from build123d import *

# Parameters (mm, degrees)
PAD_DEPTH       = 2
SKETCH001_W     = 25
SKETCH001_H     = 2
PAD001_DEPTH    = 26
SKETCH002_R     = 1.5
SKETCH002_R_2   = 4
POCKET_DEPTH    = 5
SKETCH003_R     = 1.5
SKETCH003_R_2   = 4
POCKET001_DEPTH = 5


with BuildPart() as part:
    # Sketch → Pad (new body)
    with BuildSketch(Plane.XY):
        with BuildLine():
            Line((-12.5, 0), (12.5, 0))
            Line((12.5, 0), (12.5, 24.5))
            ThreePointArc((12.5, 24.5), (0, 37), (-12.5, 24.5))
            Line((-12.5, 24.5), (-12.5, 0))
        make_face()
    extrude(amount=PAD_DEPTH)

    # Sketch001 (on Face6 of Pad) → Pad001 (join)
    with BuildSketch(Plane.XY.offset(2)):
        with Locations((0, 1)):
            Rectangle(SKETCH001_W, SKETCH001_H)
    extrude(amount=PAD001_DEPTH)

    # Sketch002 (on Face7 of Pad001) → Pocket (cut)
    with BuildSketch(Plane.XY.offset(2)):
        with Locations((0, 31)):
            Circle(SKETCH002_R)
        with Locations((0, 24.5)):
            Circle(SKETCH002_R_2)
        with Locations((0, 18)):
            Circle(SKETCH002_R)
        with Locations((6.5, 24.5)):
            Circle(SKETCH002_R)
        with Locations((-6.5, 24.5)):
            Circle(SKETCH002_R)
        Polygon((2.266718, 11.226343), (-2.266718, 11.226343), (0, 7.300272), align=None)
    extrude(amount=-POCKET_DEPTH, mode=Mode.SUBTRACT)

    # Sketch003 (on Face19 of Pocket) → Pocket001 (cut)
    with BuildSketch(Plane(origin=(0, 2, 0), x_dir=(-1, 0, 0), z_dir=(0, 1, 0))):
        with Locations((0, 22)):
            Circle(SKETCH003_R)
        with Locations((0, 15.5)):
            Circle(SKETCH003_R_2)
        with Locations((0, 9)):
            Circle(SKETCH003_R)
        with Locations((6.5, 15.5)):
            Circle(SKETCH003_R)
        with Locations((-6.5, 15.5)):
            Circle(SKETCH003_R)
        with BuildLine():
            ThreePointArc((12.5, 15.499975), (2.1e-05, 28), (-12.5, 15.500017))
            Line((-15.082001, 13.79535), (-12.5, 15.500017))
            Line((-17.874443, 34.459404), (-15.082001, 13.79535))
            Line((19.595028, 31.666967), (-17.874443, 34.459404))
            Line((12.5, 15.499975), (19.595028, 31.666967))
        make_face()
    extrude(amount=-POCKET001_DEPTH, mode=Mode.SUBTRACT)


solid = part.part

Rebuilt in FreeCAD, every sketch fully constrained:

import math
import FreeCAD as App
import Part
import Sketcher
from FreeCAD import Vector
Q = App.Units.Quantity

doc = App.newDocument("Part")
params = doc.addObject("Spreadsheet::Sheet", "Params")
for row, (alias, value) in enumerate([
    ("sketch1_radius", "12.5 mm"),
    ("sketch1_height", "24.5 mm"),
    ("pad1_length", "2 mm"),
    ("sketch2_width", "25 mm"),
    ("sketch2_height", "2 mm"),
    ("pad2_length", "26 mm"),
    ("sketch3_diameter", "3 mm"),
    ("sketch3_diameter2", "8 mm"),
    ("pocket1_length", "5 mm"),
    ("sketch4_diameter", "3 mm"),
    ("sketch4_diameter2", "8 mm"),
    ("sketch4_radius", "12.5 mm"),
    ("pocket2_length", "5 mm"),
], start=1):
    params.set(f"A{row}", alias)
    params.set(f"B{row}", "=" + value)
    params.setAlias(f"B{row}", alias)

body = doc.addObject("PartDesign::Body", "Body")

sketch1 = body.newObject("Sketcher::SketchObject", "Sketch")
sketch1.AttachmentSupport = (doc.getObject("XY_Plane"), [""])
sketch1.MapMode = "FlatFace"
sketch1.addGeometry([
    Part.LineSegment(Vector(-12, 0, 0), Vector(12, 0, 0)),
    Part.LineSegment(Vector(12, 0, 0), Vector(12, 24, 0)),
    Part.ArcOfCircle(Part.Circle(Vector(0, 24, 0), Vector(0, 0, 1), 12), math.radians(0), math.radians(180)),
    Part.LineSegment(Vector(-12, 24, 0), Vector(-12, 0, 0)),
], False)
sketch1.addConstraint([
    Sketcher.Constraint("Coincident", 0, 2, 1, 1),
    Sketcher.Constraint("Tangent", 1, 2, 2, 1),
    Sketcher.Constraint("Tangent", 2, 2, 3, 1),
    Sketcher.Constraint("Coincident", 3, 2, 0, 1),
    Sketcher.Constraint("Horizontal", 0),
    Sketcher.Constraint("Vertical", 1),
    Sketcher.Constraint("Vertical", 3),
    Sketcher.Constraint("Symmetric", 0, 2, 3, 2, -1, 1),
    Sketcher.Constraint("Radius", 2, 12.5),
    Sketcher.Constraint("DistanceY", 1, 1, 1, 2, 24.5),
])
sketch1.setExpression("Constraints[8]", "Params.sketch1_radius")
sketch1.setExpression("Constraints[9]", "Params.sketch1_height")
pad1 = body.newObject("PartDesign::Pad", "Pad")
pad1.Profile = sketch1
pad1.setExpression("Length", "Params.pad1_length")

sketch2 = body.newObject("Sketcher::SketchObject", "Sketch001")
sketch2.AttachmentSupport = (doc.getObject("XY_Plane"), [""])
sketch2.MapMode = "FlatFace"
sketch2.AttachmentOffset = App.Placement(Vector(0, 0, 2), App.Rotation())
sketch2.addGeometry([
    Part.LineSegment(Vector(-12.5, 2, 0), Vector(-12.5, 0, 0)),
    Part.LineSegment(Vector(-12.5, 0, 0), Vector(12.5, 0, 0)),
    Part.LineSegment(Vector(12.5, 0, 0), Vector(12.5, 2, 0)),
    Part.LineSegment(Vector(12.5, 2, 0), Vector(-12.5, 2, 0)),
], False)
sketch2.addConstraint([
    Sketcher.Constraint("Coincident", 0, 2, 1, 1),
    Sketcher.Constraint("Coincident", 1, 2, 2, 1),
    Sketcher.Constraint("Coincident", 2, 2, 3, 1),
    Sketcher.Constraint("Coincident", 3, 2, 0, 1),
    Sketcher.Constraint("Vertical", 0),
    Sketcher.Constraint("Horizontal", 1),
    Sketcher.Constraint("Vertical", 2),
    Sketcher.Constraint("Horizontal", 3),
    Sketcher.Constraint("Symmetric", 0, 2, 1, 2, -1, 1),
    Sketcher.Constraint("DistanceX", 1, 1, 1, 2, 25.0),
    Sketcher.Constraint("DistanceY", 0, 2, 0, 1, 2.0),
])
sketch2.setExpression("Constraints[9]", "Params.sketch2_width")
sketch2.setExpression("Constraints[10]", "Params.sketch2_height")
pad2 = body.newObject("PartDesign::Pad", "Pad001")
pad2.Profile = sketch2
pad2.setExpression("Length", "Params.pad2_length")

sketch3 = body.newObject("Sketcher::SketchObject", "Sketch002")
sketch3.AttachmentSupport = (doc.getObject("XY_Plane"), [""])
sketch3.MapMode = "FlatFace"
sketch3.AttachmentOffset = App.Placement(Vector(0, 0, 2), App.Rotation())
sketch3.addGeometry([
    Part.Circle(Vector(0, 31, 0), Vector(0, 0, 1), 1.5),
    Part.Circle(Vector(0, 24.5, 0), Vector(0, 0, 1), 4),
    Part.Circle(Vector(0, 18, 0), Vector(0, 0, 1), 1.5),
    Part.Circle(Vector(6.5, 24.5, 0), Vector(0, 0, 1), 1.5),
    Part.Circle(Vector(-6.5, 24.5, 0), Vector(0, 0, 1), 1.5),
    Part.LineSegment(Vector(2.3, 11.2, 0), Vector(-2.3, 11.2, 0)),
    Part.LineSegment(Vector(-2.3, 11.2, 0), Vector(0, 7.3, 0)),
    Part.LineSegment(Vector(0, 7.3, 0), Vector(2.3, 11.2, 0)),
], False)
sketch3.addConstraint([
    Sketcher.Constraint("Coincident", 5, 2, 6, 1),
    Sketcher.Constraint("Coincident", 6, 2, 7, 1),
    Sketcher.Constraint("Coincident", 7, 2, 5, 1),
    Sketcher.Constraint("Horizontal", 5),
    Sketcher.Constraint("Equal", 0, 2),
    Sketcher.Constraint("Equal", 2, 3),
    Sketcher.Constraint("Equal", 3, 4),
    Sketcher.Constraint("Symmetric", 3, 3, 4, 3, -2),
    Sketcher.Constraint("PointOnObject", 0, 3, -2),
    Sketcher.Constraint("PointOnObject", 1, 3, -2),
    Sketcher.Constraint("PointOnObject", 2, 3, -2),
    Sketcher.Constraint("PointOnObject", 6, 2, -2),
    Sketcher.Constraint("Horizontal", 1, 3, 3, 3),
    Sketcher.Constraint("Equal", 6, 7),
    Sketcher.Constraint("Diameter", 0, 3.0),
    Sketcher.Constraint("Diameter", 1, 8.0),
    Sketcher.Constraint("Angle", 6, Q("-60.000002 deg")),
    Sketcher.Constraint("DistanceY", -1, 1, 0, 3, 31.0),
    Sketcher.Constraint("DistanceY", -1, 1, 2, 3, 18.0),
    Sketcher.Constraint("DistanceX", 4, 3, 3, 3, 13.0),
    Sketcher.Constraint("DistanceY", -1, 1, 1, 3, 24.5),
    Sketcher.Constraint("DistanceX", 5, 2, 5, 1, 4.533436),
    Sketcher.Constraint("DistanceY", -1, 1, 6, 2, 7.300272),
])
sketch3.setExpression("Constraints[14]", "Params.sketch3_diameter")
sketch3.setExpression("Constraints[15]", "Params.sketch3_diameter2")
pocket1 = body.newObject("PartDesign::Pocket", "Pocket")
pocket1.Profile = sketch3
pocket1.setExpression("Length", "Params.pocket1_length")

sketch4 = body.newObject("Sketcher::SketchObject", "Sketch003")
sketch4.AttachmentSupport = (doc.getObject("XZ_Plane"), [""])
sketch4.MapMode = "FlatFace"
sketch4.AttachmentOffset = App.Placement(Vector(0, 0, -2), App.Rotation())
sketch4.addGeometry([
    Part.Circle(Vector(0, 22, 0), Vector(0, 0, 1), 1.5),
    Part.Circle(Vector(0, 15.5, 0), Vector(0, 0, 1), 4),
    Part.Circle(Vector(0, 9, 0), Vector(0, 0, 1), 1.5),
    Part.Circle(Vector(-6.5, 15.5, 0), Vector(0, 0, 1), 1.5),
    Part.Circle(Vector(6.5, 15.5, 0), Vector(0, 0, 1), 1.5),
    Part.ArcOfCircle(Part.Circle(Vector(0, 15.5, 0), Vector(0, 0, 1), 12.5), math.radians(0), math.radians(180)),
    Part.LineSegment(Vector(-12.5, 15.5, 0), Vector(-19.6, 31.7, 0)),
    Part.LineSegment(Vector(-19.6, 31.7, 0), Vector(17.9, 34.5, 0)),
    Part.LineSegment(Vector(17.9, 34.5, 0), Vector(15.1, 13.8, 0)),
    Part.LineSegment(Vector(15.1, 13.8, 0), Vector(12.5, 15.5, 0)),
], False)
sketch4.addConstraint([
    Sketcher.Constraint("Coincident", 5, 2, 6, 1),
    Sketcher.Constraint("Coincident", 6, 2, 7, 1),
    Sketcher.Constraint("Coincident", 7, 2, 8, 1),
    Sketcher.Constraint("Coincident", 8, 2, 9, 1),
    Sketcher.Constraint("Coincident", 9, 2, 5, 1),
    Sketcher.Constraint("Coincident", 5, 3, 1, 3),
    Sketcher.Constraint("Equal", 0, 2),
    Sketcher.Constraint("Equal", 2, 3),
    Sketcher.Constraint("Equal", 3, 4),
    Sketcher.Constraint("Symmetric", 3, 3, 4, 3, -2),
    Sketcher.Constraint("PointOnObject", 0, 3, -2),
    Sketcher.Constraint("PointOnObject", 1, 3, -2),
    Sketcher.Constraint("PointOnObject", 2, 3, -2),
    Sketcher.Constraint("Horizontal", 1, 3, 3, 3),
    Sketcher.Constraint("Diameter", 0, 3.0),
    Sketcher.Constraint("Diameter", 1, 8.0),
    Sketcher.Constraint("Radius", 5, 12.5),
    Sketcher.Constraint("DistanceY", -1, 1, 0, 3, 22.0),
    Sketcher.Constraint("DistanceY", -1, 1, 2, 3, 9.0),
    Sketcher.Constraint("DistanceX", 3, 3, 4, 3, 13.0),
    Sketcher.Constraint("DistanceY", -1, 1, 1, 3, 15.5),
    Sketcher.Constraint("DistanceX", -1, 1, 8, 2, 15.082001),
    Sketcher.Constraint("Distance", 6, 17.655341),
    Sketcher.Constraint("Distance", 7, 37.573381),
    Sketcher.Constraint("Distance", 8, 20.851879),
    Sketcher.Constraint("DistanceY", -1, 1, 8, 2, 13.79535),
    Sketcher.Constraint("DistanceX", 6, 2, 5, 2, 7.095028),
    Sketcher.Constraint("Distance", 9, 3.093965),
    Sketcher.Constraint("DistanceY", -1, 1, 5, 2, 15.499975),
])
sketch4.setExpression("Constraints[14]", "Params.sketch4_diameter")
sketch4.setExpression("Constraints[15]", "Params.sketch4_diameter2")
sketch4.setExpression("Constraints[16]", "Params.sketch4_radius")
pocket2 = body.newObject("PartDesign::Pocket", "Pocket001")
pocket2.Profile = sketch4
pocket2.setExpression("Length", "Params.pocket2_length")
pocket2.Reversed = True

doc.recompute()
